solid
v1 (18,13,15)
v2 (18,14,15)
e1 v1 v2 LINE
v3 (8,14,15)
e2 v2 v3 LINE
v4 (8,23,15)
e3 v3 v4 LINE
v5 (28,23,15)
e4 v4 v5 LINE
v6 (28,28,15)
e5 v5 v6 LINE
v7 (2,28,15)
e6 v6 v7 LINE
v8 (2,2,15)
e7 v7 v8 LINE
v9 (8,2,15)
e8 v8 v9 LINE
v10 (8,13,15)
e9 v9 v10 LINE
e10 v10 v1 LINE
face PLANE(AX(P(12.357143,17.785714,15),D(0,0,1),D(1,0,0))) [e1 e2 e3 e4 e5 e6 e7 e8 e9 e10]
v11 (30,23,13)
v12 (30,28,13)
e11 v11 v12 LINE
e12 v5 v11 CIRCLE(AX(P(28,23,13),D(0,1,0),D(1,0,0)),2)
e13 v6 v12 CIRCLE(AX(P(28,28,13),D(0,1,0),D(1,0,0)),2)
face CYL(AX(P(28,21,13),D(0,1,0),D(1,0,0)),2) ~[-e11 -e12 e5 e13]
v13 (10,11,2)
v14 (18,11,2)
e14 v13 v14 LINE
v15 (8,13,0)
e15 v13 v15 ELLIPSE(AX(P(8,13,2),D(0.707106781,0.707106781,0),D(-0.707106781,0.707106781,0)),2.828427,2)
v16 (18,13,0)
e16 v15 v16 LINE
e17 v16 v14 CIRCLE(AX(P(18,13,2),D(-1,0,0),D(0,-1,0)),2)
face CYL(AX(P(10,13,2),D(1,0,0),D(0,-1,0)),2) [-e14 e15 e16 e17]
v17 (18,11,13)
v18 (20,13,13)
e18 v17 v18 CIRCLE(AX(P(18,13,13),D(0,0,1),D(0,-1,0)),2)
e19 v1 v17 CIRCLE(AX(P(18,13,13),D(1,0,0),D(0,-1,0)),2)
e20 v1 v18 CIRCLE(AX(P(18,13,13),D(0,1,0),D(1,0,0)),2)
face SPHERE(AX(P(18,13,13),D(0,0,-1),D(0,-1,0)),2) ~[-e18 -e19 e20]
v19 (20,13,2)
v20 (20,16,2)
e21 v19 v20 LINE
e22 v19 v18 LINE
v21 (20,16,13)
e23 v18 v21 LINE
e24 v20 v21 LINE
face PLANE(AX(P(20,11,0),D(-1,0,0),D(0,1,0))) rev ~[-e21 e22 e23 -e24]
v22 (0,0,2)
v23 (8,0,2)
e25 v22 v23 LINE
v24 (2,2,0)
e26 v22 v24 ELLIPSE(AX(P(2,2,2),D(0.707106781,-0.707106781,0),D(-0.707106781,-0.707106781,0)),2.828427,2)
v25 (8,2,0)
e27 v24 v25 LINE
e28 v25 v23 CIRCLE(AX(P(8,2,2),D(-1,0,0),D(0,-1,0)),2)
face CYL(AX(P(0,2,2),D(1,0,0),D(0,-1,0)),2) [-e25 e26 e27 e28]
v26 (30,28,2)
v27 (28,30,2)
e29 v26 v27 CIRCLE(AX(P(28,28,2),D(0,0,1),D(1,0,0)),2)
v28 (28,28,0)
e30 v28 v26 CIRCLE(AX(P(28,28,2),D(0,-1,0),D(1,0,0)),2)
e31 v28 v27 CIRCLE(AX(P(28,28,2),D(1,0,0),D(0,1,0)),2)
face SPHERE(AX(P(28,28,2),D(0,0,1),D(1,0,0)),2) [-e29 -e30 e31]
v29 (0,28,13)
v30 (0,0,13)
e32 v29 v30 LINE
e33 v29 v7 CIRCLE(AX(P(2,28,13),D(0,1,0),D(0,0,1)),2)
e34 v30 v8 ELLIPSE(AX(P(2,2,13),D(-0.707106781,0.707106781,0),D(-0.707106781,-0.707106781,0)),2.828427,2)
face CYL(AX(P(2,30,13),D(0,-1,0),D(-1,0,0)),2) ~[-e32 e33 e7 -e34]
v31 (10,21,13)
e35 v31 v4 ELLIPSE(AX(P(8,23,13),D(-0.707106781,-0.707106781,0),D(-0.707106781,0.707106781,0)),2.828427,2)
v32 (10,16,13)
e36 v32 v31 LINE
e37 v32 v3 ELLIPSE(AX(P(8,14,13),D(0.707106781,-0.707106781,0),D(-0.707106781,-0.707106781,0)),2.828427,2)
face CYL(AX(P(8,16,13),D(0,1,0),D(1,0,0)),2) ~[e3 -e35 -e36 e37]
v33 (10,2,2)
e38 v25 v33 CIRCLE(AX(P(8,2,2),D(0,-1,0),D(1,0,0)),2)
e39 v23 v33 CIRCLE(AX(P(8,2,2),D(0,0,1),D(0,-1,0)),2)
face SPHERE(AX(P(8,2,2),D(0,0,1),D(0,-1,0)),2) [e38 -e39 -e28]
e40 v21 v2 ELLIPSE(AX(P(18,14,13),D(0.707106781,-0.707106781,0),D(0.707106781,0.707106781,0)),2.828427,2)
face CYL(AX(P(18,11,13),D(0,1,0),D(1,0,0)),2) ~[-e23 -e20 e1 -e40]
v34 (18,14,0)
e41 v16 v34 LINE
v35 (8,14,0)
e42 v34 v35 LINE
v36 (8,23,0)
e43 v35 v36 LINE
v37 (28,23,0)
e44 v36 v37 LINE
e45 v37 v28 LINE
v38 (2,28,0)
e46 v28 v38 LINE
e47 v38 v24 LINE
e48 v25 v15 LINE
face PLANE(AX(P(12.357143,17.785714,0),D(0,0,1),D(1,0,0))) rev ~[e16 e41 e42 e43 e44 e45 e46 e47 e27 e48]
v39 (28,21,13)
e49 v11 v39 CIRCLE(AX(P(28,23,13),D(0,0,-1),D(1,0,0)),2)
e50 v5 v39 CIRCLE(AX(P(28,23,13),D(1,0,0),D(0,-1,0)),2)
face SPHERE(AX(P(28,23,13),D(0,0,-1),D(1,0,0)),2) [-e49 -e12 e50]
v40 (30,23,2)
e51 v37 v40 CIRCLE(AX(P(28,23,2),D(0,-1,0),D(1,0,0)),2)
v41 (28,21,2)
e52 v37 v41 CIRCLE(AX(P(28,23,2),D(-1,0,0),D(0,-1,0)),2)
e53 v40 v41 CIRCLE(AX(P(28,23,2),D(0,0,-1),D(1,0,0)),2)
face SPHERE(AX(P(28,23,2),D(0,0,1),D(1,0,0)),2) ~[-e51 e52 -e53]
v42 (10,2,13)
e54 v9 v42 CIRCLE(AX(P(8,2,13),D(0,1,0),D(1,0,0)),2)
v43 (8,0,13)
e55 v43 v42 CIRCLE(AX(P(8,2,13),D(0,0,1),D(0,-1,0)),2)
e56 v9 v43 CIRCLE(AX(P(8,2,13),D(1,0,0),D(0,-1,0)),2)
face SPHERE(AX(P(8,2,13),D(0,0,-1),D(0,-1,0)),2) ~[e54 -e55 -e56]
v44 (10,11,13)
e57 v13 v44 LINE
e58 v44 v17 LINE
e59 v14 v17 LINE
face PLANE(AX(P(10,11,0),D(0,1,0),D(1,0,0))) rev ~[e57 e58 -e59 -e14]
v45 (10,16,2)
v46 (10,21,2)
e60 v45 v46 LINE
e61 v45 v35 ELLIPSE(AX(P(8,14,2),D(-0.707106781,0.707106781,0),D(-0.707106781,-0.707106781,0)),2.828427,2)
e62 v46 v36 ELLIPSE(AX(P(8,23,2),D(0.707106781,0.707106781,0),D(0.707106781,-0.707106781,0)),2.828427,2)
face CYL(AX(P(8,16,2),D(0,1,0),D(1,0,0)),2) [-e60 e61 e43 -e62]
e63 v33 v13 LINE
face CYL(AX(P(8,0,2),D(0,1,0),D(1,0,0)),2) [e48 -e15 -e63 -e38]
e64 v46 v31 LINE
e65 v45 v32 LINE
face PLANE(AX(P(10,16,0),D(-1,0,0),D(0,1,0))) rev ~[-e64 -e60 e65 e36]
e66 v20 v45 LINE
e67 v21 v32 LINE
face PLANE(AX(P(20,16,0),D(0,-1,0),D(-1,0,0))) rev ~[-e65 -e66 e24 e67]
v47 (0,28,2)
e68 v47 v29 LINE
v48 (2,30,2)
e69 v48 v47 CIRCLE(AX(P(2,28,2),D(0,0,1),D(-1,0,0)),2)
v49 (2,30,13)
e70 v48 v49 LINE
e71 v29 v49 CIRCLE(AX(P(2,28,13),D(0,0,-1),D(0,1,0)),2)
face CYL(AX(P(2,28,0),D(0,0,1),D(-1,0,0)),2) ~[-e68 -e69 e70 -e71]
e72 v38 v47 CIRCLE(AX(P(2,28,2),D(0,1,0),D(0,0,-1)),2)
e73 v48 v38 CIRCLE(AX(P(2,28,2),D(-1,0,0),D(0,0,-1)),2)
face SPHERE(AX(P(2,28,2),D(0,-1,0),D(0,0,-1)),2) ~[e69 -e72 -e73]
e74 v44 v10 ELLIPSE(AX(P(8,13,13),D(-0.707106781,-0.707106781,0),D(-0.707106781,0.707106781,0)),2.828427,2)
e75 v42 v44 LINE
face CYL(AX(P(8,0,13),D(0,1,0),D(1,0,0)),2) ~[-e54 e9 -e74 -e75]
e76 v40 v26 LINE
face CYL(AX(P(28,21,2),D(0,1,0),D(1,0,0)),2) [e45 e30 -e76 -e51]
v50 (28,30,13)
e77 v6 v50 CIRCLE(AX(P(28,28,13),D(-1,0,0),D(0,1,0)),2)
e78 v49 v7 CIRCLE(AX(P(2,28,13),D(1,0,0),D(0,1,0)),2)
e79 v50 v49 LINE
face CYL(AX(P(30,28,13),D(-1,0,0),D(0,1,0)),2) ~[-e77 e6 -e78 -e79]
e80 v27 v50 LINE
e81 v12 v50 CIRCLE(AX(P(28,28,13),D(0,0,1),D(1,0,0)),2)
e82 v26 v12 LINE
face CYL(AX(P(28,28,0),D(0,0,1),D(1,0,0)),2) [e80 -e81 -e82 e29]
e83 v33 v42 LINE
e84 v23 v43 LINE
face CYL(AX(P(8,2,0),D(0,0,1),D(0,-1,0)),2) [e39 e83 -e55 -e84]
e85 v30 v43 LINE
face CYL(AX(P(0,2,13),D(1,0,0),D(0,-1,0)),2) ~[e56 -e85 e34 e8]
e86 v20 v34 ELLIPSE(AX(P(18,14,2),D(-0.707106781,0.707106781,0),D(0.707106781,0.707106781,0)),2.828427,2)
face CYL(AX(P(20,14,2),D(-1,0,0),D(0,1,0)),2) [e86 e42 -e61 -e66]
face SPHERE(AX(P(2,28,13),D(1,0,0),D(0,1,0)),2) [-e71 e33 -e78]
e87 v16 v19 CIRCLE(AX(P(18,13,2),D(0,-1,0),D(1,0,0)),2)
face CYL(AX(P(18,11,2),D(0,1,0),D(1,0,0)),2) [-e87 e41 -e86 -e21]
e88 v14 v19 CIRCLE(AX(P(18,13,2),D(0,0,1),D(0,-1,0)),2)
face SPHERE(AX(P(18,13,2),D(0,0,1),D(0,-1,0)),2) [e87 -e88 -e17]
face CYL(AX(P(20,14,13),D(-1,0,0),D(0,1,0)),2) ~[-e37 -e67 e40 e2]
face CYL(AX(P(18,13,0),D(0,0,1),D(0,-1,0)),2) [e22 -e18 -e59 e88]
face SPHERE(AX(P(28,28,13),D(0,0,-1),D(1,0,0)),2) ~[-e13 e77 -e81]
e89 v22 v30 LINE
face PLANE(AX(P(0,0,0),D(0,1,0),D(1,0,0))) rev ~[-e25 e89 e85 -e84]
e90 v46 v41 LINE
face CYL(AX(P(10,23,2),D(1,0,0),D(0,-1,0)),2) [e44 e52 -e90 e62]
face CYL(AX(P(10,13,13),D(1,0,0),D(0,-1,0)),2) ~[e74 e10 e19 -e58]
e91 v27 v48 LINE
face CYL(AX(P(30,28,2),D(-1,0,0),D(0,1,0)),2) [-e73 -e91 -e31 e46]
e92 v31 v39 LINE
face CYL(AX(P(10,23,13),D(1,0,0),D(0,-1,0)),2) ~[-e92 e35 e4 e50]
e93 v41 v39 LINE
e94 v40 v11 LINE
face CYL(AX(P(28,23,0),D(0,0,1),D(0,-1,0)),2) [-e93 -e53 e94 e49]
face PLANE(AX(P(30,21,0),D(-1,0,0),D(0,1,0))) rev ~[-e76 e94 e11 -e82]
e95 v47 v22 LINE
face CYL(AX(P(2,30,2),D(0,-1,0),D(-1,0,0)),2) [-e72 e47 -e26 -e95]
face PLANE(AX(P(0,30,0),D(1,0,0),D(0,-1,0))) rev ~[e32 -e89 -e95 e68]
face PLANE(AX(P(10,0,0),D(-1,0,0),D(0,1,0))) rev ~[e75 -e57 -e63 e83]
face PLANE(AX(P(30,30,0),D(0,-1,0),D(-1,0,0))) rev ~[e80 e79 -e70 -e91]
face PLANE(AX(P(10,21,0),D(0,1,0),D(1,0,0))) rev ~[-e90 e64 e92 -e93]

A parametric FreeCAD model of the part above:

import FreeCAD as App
import Part
import Sketcher
from FreeCAD import Vector
Q = App.Units.Quantity


def edges_at(feature, points):
    """Names of the edges that pass closest to the given points."""
    edges = feature.Shape.Edges
    near = lambda p: min(range(len(edges)), key=lambda i: edges[i].distToShape(Part.Vertex(*p))[0])
    return sorted({f"Edge{near(p) + 1}" for p in points})


def add_polygon(sketch, points):
    """Adds a closed chain of lines whose ends are joined by coincident constraints."""
    first, n = sketch.GeometryCount, len(points)
    for a, b in zip(points, points[1:] + points[:1]):
        sketch.addGeometry(Part.LineSegment(App.Vector(*a, 0), App.Vector(*b, 0)), False)
    for i in range(n):
        sketch.addConstraint(Sketcher.Constraint("Coincident", first + i, 2, first + (i + 1) % n, 1))

doc = App.newDocument("Part")
body = doc.addObject("PartDesign::Body", "Body")

# Sketch on XY plane
sketch1 = body.newObject("Sketcher::SketchObject", "Sketch")
sketch1.AttachmentSupport = (doc.getObject("XY_Plane"), [""])
sketch1.MapMode = "FlatFace"
add_polygon(sketch1, [(0, 30), (0, 0), (10, 0), (10, 11), (20, 11), (20, 16), (10, 16), (10, 21), (30, 21), (30, 30)])  # lines 0-9
sketch1.addConstraint(Sketcher.Constraint("Vertical", 0))
sketch1.addConstraint(Sketcher.Constraint("Horizontal", 1))
sketch1.addConstraint(Sketcher.Constraint("Vertical", 2))
sketch1.addConstraint(Sketcher.Constraint("Horizontal", 3))
sketch1.addConstraint(Sketcher.Constraint("Vertical", 4))
sketch1.addConstraint(Sketcher.Constraint("Horizontal", 5))
sketch1.addConstraint(Sketcher.Constraint("Vertical", 6))
sketch1.addConstraint(Sketcher.Constraint("Horizontal", 7))
sketch1.addConstraint(Sketcher.Constraint("Vertical", 8))
sketch1.addConstraint(Sketcher.Constraint("Horizontal", 9))
sketch1.addConstraint(Sketcher.Constraint("Coincident", 0, 2, -1, 1))
sketch1.addConstraint(Sketcher.Constraint("Vertical", 2, 2, 5, 2))
sketch1.addConstraint(Sketcher.Constraint("Equal", 1, 3))
sketch1.addConstraint(Sketcher.Constraint("Equal", 9, 0))
sketch1.addConstraint(Sketcher.Constraint("Equal", 4, 6))
sketch1.addConstraint(Sketcher.Constraint("DistanceX", 1, 1, 1, 2, Q("10 mm")))
sketch1.addConstraint(Sketcher.Constraint("DistanceX", 7, 1, 7, 2, Q("20 mm")))
sketch1.addConstraint(Sketcher.Constraint("DistanceY", 2, 1, 2, 2, Q("11 mm")))
sketch1.addConstraint(Sketcher.Constraint("DistanceY", 4, 1, 4, 2, Q("5 mm")))
pad1 = body.newObject("PartDesign::Pad", "Pad")
pad1.Profile = sketch1
pad1.Length = 15
doc.recompute()

fillet = body.newObject("PartDesign::Fillet", "Fillet")
fillet.Base = (pad1, edges_at(pad1, [
    (30, 21, 7.5),
    (30, 30, 7.5),
    (30, 25.5, 0),
    (30, 25.5, 15),
    (20, 11, 7.5),
    (10, 0, 7.5),
    (20, 21, 0),
    (15, 30, 15),
    (0, 15, 0),
    (5, 0, 0),
    (10, 5.5, 0),
    (15, 11, 0),
    (20, 13.5, 0),
    (15, 16, 0),
    (10, 18.5, 0),
    (15, 30, 0),
    (0, 30, 7.5),
    (0, 15, 15),
    (5, 0, 15),
    (10, 5.5, 15),
    (15, 11, 15),
    (20, 13.5, 15),
    (15, 16, 15),
    (10, 18.5, 15),
    (20, 21, 15),
]))
fillet.Radius = 2

doc.recompute()
